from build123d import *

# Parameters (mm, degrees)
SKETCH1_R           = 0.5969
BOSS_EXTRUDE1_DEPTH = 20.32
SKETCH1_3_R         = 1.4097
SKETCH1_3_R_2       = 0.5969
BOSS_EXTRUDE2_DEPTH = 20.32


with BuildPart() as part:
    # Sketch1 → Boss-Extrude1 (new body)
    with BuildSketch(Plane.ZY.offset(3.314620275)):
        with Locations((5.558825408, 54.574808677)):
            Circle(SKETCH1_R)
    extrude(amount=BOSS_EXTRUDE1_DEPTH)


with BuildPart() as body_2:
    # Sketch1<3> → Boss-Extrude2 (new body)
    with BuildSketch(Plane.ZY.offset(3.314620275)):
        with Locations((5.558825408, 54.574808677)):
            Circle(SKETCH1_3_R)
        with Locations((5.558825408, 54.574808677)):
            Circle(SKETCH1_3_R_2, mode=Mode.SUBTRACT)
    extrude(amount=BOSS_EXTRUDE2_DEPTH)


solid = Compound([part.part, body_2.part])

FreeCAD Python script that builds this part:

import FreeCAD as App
import Part
import Sketcher
Q = App.Units.Quantity

doc = App.newDocument("Part")
body = doc.addObject("PartDesign::Body", "Body")

# Sketch on YZ plane
sketch1 = doc.addObject("Sketcher::SketchObject", "Sketch")
body.addObject(sketch1)
sketch1.AttachmentSupport = (doc.YZ_Plane, [""])
sketch1.MapMode = "FlatFace"
sketch1.AttachmentOffset = App.Placement(App.Vector(0, 0, -3.31462), App.Rotation())
sketch1.addGeometry(Part.Circle(App.Vector(54.6, 5.6, 0), App.Vector(0, 0, 1), 0.6), False)
sketch1.addConstraint([
    Sketcher.Constraint("Diameter", 0, Q("0.047 in")),
    Sketcher.Constraint("DistanceX", -1, 1, 0, 3, Q("54.574809 mm")),
    Sketcher.Constraint("DistanceY", -1, 1, 0, 3, Q("5.558825 mm")),
])
pad1 = doc.addObject("PartDesign::Pad", "Pad")
body.addObject(pad1)
pad1.Profile = sketch1
pad1.Length = Q("0.8 in")
pad1.Reversed = True
body2 = doc.addObject("PartDesign::Body", "Body001")

# Sketch on YZ plane
sketch2 = doc.addObject("Sketcher::SketchObject", "Sketch001")
body2.addObject(sketch2)
sketch2.AttachmentSupport = (doc.getObject("YZ_Plane001"), [""])
sketch2.MapMode = "FlatFace"
sketch2.AttachmentOffset = App.Placement(App.Vector(0, 0, -3.31462), App.Rotation())
sketch2.addGeometry([
    Part.Circle(App.Vector(54.6, 5.6, 0), App.Vector(0, 0, 1), 1.4),
    Part.Circle(App.Vector(54.6, 5.6, 0), App.Vector(0, 0, 1), 0.6),
], False)
sketch2.addConstraint([
    Sketcher.Constraint("Coincident", 1, 3, 0, 3),
    Sketcher.Constraint("Diameter", 0, Q("0.111 in")),
    Sketcher.Constraint("Diameter", 1, Q("0.047 in")),
    Sketcher.Constraint("DistanceX", -1, 1, 0, 3, Q("54.574809 mm")),
    Sketcher.Constraint("DistanceY", -1, 1, 0, 3, Q("5.558825 mm")),
])
pad2 = doc.addObject("PartDesign::Pad", "Pad001")
body2.addObject(pad2)
pad2.Profile = sketch2
pad2.Length = Q("0.8 in")
pad2.Reversed = True

doc.recompute()
